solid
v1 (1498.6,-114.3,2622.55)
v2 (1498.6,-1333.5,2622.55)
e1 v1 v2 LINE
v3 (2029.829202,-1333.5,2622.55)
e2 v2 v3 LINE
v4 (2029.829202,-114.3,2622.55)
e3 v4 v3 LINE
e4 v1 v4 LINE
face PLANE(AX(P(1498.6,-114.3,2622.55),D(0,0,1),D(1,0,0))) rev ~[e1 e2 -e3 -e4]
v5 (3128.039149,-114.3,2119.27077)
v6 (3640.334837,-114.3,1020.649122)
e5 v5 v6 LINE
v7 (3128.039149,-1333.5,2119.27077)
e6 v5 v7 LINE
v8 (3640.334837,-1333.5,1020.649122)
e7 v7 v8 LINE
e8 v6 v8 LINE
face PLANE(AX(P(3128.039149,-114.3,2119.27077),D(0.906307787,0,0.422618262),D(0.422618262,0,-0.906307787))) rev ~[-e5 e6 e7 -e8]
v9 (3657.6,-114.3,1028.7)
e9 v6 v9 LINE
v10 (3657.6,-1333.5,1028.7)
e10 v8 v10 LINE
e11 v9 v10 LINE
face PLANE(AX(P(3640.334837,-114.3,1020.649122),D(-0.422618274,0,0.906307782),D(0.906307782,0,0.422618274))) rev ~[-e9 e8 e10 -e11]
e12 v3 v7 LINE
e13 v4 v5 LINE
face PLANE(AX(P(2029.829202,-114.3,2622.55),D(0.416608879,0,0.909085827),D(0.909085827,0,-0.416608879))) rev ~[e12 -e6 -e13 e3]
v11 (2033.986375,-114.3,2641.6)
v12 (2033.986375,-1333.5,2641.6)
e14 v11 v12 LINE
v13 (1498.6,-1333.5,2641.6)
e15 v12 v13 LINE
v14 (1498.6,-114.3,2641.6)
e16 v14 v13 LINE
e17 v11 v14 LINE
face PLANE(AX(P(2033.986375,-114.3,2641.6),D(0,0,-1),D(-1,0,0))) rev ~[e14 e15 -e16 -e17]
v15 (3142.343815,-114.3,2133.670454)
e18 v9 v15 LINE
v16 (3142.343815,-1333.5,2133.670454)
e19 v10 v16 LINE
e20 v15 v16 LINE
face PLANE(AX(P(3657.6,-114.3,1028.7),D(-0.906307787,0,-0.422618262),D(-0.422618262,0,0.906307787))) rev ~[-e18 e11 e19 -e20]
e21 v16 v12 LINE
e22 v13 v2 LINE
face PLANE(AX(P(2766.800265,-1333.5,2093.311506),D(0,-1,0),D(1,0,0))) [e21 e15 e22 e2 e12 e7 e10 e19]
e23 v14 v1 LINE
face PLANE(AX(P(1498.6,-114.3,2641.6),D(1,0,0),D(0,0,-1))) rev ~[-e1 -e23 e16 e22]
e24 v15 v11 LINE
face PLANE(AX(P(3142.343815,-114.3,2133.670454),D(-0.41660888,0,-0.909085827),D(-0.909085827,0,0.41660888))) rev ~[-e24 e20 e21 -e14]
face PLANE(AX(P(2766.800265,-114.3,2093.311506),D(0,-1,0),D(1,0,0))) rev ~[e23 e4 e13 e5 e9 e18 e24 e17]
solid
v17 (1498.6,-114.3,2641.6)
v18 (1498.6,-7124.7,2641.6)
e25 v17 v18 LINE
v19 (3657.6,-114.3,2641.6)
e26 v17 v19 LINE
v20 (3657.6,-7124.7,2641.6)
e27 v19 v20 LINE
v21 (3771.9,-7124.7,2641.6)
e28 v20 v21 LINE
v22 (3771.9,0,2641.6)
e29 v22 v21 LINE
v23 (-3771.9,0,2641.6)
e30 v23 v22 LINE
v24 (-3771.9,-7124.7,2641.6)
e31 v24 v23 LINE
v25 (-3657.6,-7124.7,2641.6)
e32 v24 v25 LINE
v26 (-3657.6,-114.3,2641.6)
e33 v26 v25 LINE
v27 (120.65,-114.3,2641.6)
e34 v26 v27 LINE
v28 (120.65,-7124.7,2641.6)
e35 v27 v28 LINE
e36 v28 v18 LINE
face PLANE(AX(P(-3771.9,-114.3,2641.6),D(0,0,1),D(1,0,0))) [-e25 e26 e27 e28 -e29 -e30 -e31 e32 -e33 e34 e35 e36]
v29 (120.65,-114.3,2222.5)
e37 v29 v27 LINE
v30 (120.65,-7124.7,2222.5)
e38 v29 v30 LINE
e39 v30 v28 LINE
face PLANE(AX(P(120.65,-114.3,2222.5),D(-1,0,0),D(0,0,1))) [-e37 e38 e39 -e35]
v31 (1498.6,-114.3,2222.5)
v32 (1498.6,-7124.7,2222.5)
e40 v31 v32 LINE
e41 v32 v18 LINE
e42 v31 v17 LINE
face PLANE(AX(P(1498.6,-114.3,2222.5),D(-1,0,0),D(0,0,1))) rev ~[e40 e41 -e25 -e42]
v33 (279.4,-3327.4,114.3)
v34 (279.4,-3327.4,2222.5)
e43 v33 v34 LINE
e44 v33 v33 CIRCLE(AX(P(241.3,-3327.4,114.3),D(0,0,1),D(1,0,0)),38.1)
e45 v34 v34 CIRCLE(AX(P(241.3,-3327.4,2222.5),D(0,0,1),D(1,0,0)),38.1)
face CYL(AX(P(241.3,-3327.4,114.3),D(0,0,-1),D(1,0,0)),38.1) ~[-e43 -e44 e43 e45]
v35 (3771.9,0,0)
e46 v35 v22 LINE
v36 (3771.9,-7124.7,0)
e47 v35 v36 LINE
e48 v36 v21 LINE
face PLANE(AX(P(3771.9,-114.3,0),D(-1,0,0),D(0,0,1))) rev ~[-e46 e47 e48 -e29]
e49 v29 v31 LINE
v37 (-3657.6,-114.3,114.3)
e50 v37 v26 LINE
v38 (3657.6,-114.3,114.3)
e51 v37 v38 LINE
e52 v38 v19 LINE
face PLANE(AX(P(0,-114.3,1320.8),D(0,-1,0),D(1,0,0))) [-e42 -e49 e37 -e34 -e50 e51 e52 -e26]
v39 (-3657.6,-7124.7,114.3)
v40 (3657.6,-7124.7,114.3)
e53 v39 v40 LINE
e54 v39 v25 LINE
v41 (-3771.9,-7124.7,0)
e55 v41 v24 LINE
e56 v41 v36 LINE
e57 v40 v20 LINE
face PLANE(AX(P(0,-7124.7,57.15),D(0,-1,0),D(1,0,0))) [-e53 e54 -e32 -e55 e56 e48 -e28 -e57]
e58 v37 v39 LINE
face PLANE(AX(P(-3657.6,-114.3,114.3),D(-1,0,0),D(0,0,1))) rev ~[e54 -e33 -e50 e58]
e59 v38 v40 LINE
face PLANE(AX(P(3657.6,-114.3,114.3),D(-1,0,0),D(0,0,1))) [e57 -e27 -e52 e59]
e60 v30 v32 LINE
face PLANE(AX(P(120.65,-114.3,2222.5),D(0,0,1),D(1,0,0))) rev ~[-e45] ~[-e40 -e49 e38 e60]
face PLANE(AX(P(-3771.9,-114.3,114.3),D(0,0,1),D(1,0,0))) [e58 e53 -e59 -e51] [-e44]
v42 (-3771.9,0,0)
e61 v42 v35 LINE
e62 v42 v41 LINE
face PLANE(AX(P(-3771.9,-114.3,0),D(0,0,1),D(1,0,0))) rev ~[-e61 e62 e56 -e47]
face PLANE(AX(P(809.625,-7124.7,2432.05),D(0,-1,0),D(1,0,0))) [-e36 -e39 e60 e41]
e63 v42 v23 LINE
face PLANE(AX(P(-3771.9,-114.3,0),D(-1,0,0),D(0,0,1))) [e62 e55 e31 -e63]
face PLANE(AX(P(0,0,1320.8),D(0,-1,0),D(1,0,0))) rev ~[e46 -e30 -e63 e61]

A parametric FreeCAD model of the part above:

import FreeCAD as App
import Part
import Sketcher
from FreeCAD import Vector
Q = App.Units.Quantity

doc = App.newDocument("Part")
params = doc.addObject("Spreadsheet::Sheet", "Params")
for row, (alias, value) in enumerate([
    ("sketch1_width", "297 in"),
    ("sketch1_height", "104 in"),
    ("pad1_length", "4.5 in"),
    ("sketch2_width", "297 in"),
    ("sketch2_width2", "288 in"),
    ("sketch2_height", "104 in"),
    ("sketch2_height2", "99.5 in"),
    ("sketch2_height3", "16.5 in"),
    ("pad2_length", "276 in"),
    ("sketch3_diameter", "3 in"),
    ("pad3_length", "83 in"),
    ("sketch4_length", "48 in"),
    ("sketch4_height", "0.75 in"),
    ("sketch4_length2", "0.75 in"),
    ("pad4_length", "48 in"),
], start=1):
    params.set(f"A{row}", alias)
    params.set(f"B{row}", "=" + value)
    params.setAlias(f"B{row}", alias)

body = doc.addObject("PartDesign::Body", "Body")

sketch1 = body.newObject("Sketcher::SketchObject", "Sketch")
sketch1.AttachmentSupport = (doc.getObject("XZ_Plane"), [""])
sketch1.MapMode = "FlatFace"
sketch1.addGeometry(Part.LineSegment(Vector(-3771.9, 2641.6, 0), Vector(-3771.9, 0, 0)), False)
sketch1.addGeometry(Part.LineSegment(Vector(-3771.9, 0, 0), Vector(3771.9, 0, 0)), False)
sketch1.addGeometry(Part.LineSegment(Vector(3771.9, 0, 0), Vector(3771.9, 2641.6, 0)), False)
sketch1.addGeometry(Part.LineSegment(Vector(3771.9, 2641.6, 0), Vector(-3771.9, 2641.6, 0)), False)
sketch1.addConstraint(Sketcher.Constraint("Coincident", 0, 2, 1, 1))
sketch1.addConstraint(Sketcher.Constraint("Coincident", 1, 2, 2, 1))
sketch1.addConstraint(Sketcher.Constraint("Coincident", 2, 2, 3, 1))
sketch1.addConstraint(Sketcher.Constraint("Coincident", 3, 2, 0, 1))
sketch1.addConstraint(Sketcher.Constraint("Vertical", 0))
sketch1.addConstraint(Sketcher.Constraint("Horizontal", 1))
sketch1.addConstraint(Sketcher.Constraint("Vertical", 2))
sketch1.addConstraint(Sketcher.Constraint("Horizontal", 3))
sketch1.addConstraint(Sketcher.Constraint("Symmetric", 0, 2, 1, 2, -1, 1))
sketch1.addConstraint(Sketcher.Constraint("DistanceX", 1, 1, 1, 2, Q("297 in")))
sketch1.addConstraint(Sketcher.Constraint("DistanceY", 0, 2, 0, 1, Q("104 in")))
sketch1.setExpression("Constraints[9]", "Params.sketch1_width")
sketch1.setExpression("Constraints[10]", "Params.sketch1_height")
pad1 = body.newObject("PartDesign::Pad", "Pad")
pad1.Profile = sketch1
pad1.setExpression("Length", "Params.pad1_length")

sketch2 = body.newObject("Sketcher::SketchObject", "Sketch001")
sketch2.AttachmentSupport = (doc.getObject("XZ_Plane"), [""])
sketch2.MapMode = "FlatFace"
sketch2.AttachmentOffset = App.Placement(Vector(0, 0, 4.5 * 25.4), App.Rotation())
sketch2.addGeometry(Part.LineSegment(Vector(-3771.9, 0, 0), Vector(3771.9, 0, 0)), False)
sketch2.addGeometry(Part.LineSegment(Vector(3771.9, 0, 0), Vector(3771.9, 2641.6, 0)), False)
sketch2.addGeometry(Part.LineSegment(Vector(3771.9, 2641.6, 0), Vector(3657.6, 2641.6, 0)), False)
sketch2.addGeometry(Part.LineSegment(Vector(3657.6, 2641.6, 0), Vector(3657.6, 114.3, 0)), False)
sketch2.addGeometry(Part.LineSegment(Vector(3657.6, 114.3, 0), Vector(-3657.6, 114.3, 0)), False)
sketch2.addGeometry(Part.LineSegment(Vector(-3657.6, 114.3, 0), Vector(-3657.6, 2641.6, 0)), False)
sketch2.addGeometry(Part.LineSegment(Vector(-3657.6, 2641.6, 0), Vector(-3771.9, 2641.6, 0)), False)
sketch2.addGeometry(Part.LineSegment(Vector(-3771.9, 2641.6, 0), Vector(-3771.9, 0, 0)), False)
sketch2.addGeometry(Part.LineSegment(Vector(120.65, 2641.6, 0), Vector(120.65, 2222.5, 0)), False)
sketch2.addGeometry(Part.LineSegment(Vector(120.65, 2222.5, 0), Vector(1498.6, 2222.5, 0)), False)
sketch2.addGeometry(Part.LineSegment(Vector(1498.6, 2222.5, 0), Vector(1498.6, 2641.6, 0)), False)
sketch2.addGeometry(Part.LineSegment(Vector(1498.6, 2641.6, 0), Vector(120.65, 2641.6, 0)), False)
sketch2.addConstraint(Sketcher.Constraint("Coincident", 0, 2, 1, 1))
sketch2.addConstraint(Sketcher.Constraint("Coincident", 1, 2, 2, 1))
sketch2.addConstraint(Sketcher.Constraint("Coincident", 2, 2, 3, 1))
sketch2.addConstraint(Sketcher.Constraint("Coincident", 3, 2, 4, 1))
sketch2.addConstraint(Sketcher.Constraint("Coincident", 4, 2, 5, 1))
sketch2.addConstraint(Sketcher.Constraint("Coincident", 5, 2, 6, 1))
sketch2.addConstraint(Sketcher.Constraint("Coincident", 6, 2, 7, 1))
sketch2.addConstraint(Sketcher.Constraint("Coincident", 7, 2, 0, 1))
sketch2.addConstraint(Sketcher.Constraint("Coincident", 8, 2, 9, 1))
sketch2.addConstraint(Sketcher.Constraint("Coincident", 9, 2, 10, 1))
sketch2.addConstraint(Sketcher.Constraint("Coincident", 10, 2, 11, 1))
sketch2.addConstraint(Sketcher.Constraint("Coincident", 11, 2, 8, 1))
sketch2.addConstraint(Sketcher.Constraint("Horizontal", 0))
sketch2.addConstraint(Sketcher.Constraint("Vertical", 1))
sketch2.addConstraint(Sketcher.Constraint("Horizontal", 2))
sketch2.addConstraint(Sketcher.Constraint("Vertical", 3))
sketch2.addConstraint(Sketcher.Constraint("Horizontal", 4))
sketch2.addConstraint(Sketcher.Constraint("Vertical", 5))
sketch2.addConstraint(Sketcher.Constraint("Horizontal", 6))
sketch2.addConstraint(Sketcher.Constraint("Vertical", 7))
sketch2.addConstraint(Sketcher.Constraint("Vertical", 8))
sketch2.addConstraint(Sketcher.Constraint("Horizontal", 9))
sketch2.addConstraint(Sketcher.Constraint("Vertical", 10))
sketch2.addConstraint(Sketcher.Constraint("Horizontal", 11))
sketch2.addConstraint(Sketcher.Constraint("Symmetric", 0, 2, 7, 2, -1, 1))
sketch2.addConstraint(Sketcher.Constraint("Symmetric", 2, 2, 5, 2, -2))
sketch2.addConstraint(Sketcher.Constraint("Horizontal", 6, 2, 10, 2))
sketch2.addConstraint(Sketcher.Constraint("DistanceX", 0, 1, 0, 2, Q("297 in")))
sketch2.addConstraint(Sketcher.Constraint("DistanceX", 4, 2, 4, 1, Q("288 in")))
sketch2.addConstraint(Sketcher.Constraint("DistanceY", 1, 1, 1, 2, Q("104 in")))
sketch2.addConstraint(Sketcher.Constraint("DistanceY", 3, 2, 3, 1, Q("99.5 in")))
sketch2.addConstraint(Sketcher.Constraint("DistanceY", 8, 2, 8, 1, Q("16.5 in")))
sketch2.addConstraint(Sketcher.Constraint("DistanceX", -1, 1, 9, 2, Q("59 in")))
sketch2.addConstraint(Sketcher.Constraint("DistanceX", 9, 1, 9, 2, Q("54.25 in")))
sketch2.setExpression("Constraints[27]", "Params.sketch2_width")
sketch2.setExpression("Constraints[28]", "Params.sketch2_width2")
sketch2.setExpression("Constraints[29]", "Params.sketch2_height")
sketch2.setExpression("Constraints[30]", "Params.sketch2_height2")
sketch2.setExpression("Constraints[31]", "Params.sketch2_height3")
pad2 = body.newObject("PartDesign::Pad", "Pad001")
pad2.Profile = sketch2
pad2.setExpression("Length", "Params.pad2_length")

sketch3 = body.newObject("Sketcher::SketchObject", "Sketch002")
sketch3.AttachmentSupport = (doc.getObject("XY_Plane"), [""])
sketch3.MapMode = "FlatFace"
sketch3.AttachmentOffset = App.Placement(Vector(0, 0, 4.5 * 25.4), App.Rotation())
sketch3.addGeometry(Part.Circle(Vector(241.3, -3327.4, 0), Vector(0, 0, 1), 38.1), False)
sketch3.addConstraint(Sketcher.Constraint("Diameter", 0, Q("3 in")))
sketch3.addConstraint(Sketcher.Constraint("DistanceY", 0, 3, -1, 1, Q("131 in")))
sketch3.addConstraint(Sketcher.Constraint("DistanceX", -1, 1, 0, 3, Q("9.5 in")))
sketch3.setExpression("Constraints[0]", "Params.sketch3_diameter")
pad3 = body.newObject("PartDesign::Pad", "Pad002")
pad3.Profile = sketch3
pad3.setExpression("Length", "Params.pad3_length")
body2 = doc.addObject("PartDesign::Body", "Body001")

sketch4 = body2.newObject("Sketcher::SketchObject", "Sketch003")
sketch4.AttachmentSupport = (doc.getObject("XZ_Plane001"), [""])
sketch4.MapMode = "FlatFace"
sketch4.AttachmentOffset = App.Placement(Vector(0, 0, 4.5 * 25.4), App.Rotation())
sketch4.addGeometry(Part.LineSegment(Vector(3657.6, 1028.7, 0), Vector(3142.343815, 2133.670454, 0)), False)
sketch4.addGeometry(Part.LineSegment(Vector(3142.343815, 2133.670454, 0), Vector(2033.986375, 2641.6, 0)), False)
sketch4.addGeometry(Part.LineSegment(Vector(2033.986375, 2641.6, 0), Vector(1498.6, 2641.6, 0)), False)
sketch4.addGeometry(Part.LineSegment(Vector(1498.6, 2641.6, 0), Vector(1498.6, 2622.55, 0)), False)
sketch4.addGeometry(Part.LineSegment(Vector(1498.6, 2622.55, 0), Vector(2029.829202, 2622.55, 0)), False)
sketch4.addGeometry(Part.LineSegment(Vector(2029.829202, 2622.55, 0), Vector(3128.039149, 2119.27077, 0)), False)
sketch4.addGeometry(Part.LineSegment(Vector(3128.039149, 2119.27077, 0), Vector(3640.334837, 1020.649122, 0)), False)
sketch4.addGeometry(Part.LineSegment(Vector(3640.334837, 1020.649122, 0), Vector(3657.6, 1028.7, 0)), False)
sketch4.addConstraint(Sketcher.Constraint("Coincident", 0, 2, 1, 1))
sketch4.addConstraint(Sketcher.Constraint("Coincident", 1, 2, 2, 1))
sketch4.addConstraint(Sketcher.Constraint("Coincident", 2, 2, 3, 1))
sketch4.addConstraint(Sketcher.Constraint("Coincident", 3, 2, 4, 1))
sketch4.addConstraint(Sketcher.Constraint("Coincident", 4, 2, 5, 1))
sketch4.addConstraint(Sketcher.Constraint("Coincident", 5, 2, 6, 1))
sketch4.addConstraint(Sketcher.Constraint("Coincident", 6, 2, 7, 1))
sketch4.addConstraint(Sketcher.Constraint("Coincident", 7, 2, 0, 1))
sketch4.addConstraint(Sketcher.Constraint("Horizontal", 2))
sketch4.addConstraint(Sketcher.Constraint("Vertical", 3))
sketch4.addConstraint(Sketcher.Constraint("Horizontal", 4))
sketch4.addConstraint(Sketcher.Constraint("Parallel", 1, 5))
sketch4.addConstraint(Sketcher.Constraint("Parallel", 0, 6))
sketch4.addConstraint(Sketcher.Constraint("Perpendicular", 6, 7))
sketch4.addConstraint(Sketcher.Constraint("Equal", 0, 1))
sketch4.addConstraint(Sketcher.Constraint("Distance", 0, Q("48 in")))
sketch4.addConstraint(Sketcher.Constraint("DistanceY", -1, 1, 1, 2, Q("104 in")))
sketch4.addConstraint(Sketcher.Constraint("DistanceX", -1, 1, 2, 2, Q("59 in")))
sketch4.addConstraint(Sketcher.Constraint("DistanceX", -1, 1, 7, 2, Q("144 in")))
sketch4.addConstraint(Sketcher.Constraint("Angle", 0, Q("115 deg")))
sketch4.addConstraint(Sketcher.Constraint("DistanceY", 3, 2, 3, 1, Q("0.75 in")))
sketch4.addConstraint(Sketcher.Constraint("DistanceY", -1, 1, 7, 2, Q("40.5 in")))
sketch4.addConstraint(Sketcher.Constraint("Distance", 7, Q("0.75 in")))
sketch4.addConstraint(Sketcher.Constraint("DistanceX", 4, 1, 4, 2, 531.229202))
sketch4.setExpression("Constraints[15]", "Params.sketch4_length")
sketch4.setExpression("Constraints[20]", "Params.sketch4_height")
sketch4.setExpression("Constraints[22]", "Params.sketch4_length2")
pad4 = body2.newObject("PartDesign::Pad", "Pad003")
pad4.Profile = sketch4
pad4.setExpression("Length", "Params.pad4_length")

doc.recompute()
